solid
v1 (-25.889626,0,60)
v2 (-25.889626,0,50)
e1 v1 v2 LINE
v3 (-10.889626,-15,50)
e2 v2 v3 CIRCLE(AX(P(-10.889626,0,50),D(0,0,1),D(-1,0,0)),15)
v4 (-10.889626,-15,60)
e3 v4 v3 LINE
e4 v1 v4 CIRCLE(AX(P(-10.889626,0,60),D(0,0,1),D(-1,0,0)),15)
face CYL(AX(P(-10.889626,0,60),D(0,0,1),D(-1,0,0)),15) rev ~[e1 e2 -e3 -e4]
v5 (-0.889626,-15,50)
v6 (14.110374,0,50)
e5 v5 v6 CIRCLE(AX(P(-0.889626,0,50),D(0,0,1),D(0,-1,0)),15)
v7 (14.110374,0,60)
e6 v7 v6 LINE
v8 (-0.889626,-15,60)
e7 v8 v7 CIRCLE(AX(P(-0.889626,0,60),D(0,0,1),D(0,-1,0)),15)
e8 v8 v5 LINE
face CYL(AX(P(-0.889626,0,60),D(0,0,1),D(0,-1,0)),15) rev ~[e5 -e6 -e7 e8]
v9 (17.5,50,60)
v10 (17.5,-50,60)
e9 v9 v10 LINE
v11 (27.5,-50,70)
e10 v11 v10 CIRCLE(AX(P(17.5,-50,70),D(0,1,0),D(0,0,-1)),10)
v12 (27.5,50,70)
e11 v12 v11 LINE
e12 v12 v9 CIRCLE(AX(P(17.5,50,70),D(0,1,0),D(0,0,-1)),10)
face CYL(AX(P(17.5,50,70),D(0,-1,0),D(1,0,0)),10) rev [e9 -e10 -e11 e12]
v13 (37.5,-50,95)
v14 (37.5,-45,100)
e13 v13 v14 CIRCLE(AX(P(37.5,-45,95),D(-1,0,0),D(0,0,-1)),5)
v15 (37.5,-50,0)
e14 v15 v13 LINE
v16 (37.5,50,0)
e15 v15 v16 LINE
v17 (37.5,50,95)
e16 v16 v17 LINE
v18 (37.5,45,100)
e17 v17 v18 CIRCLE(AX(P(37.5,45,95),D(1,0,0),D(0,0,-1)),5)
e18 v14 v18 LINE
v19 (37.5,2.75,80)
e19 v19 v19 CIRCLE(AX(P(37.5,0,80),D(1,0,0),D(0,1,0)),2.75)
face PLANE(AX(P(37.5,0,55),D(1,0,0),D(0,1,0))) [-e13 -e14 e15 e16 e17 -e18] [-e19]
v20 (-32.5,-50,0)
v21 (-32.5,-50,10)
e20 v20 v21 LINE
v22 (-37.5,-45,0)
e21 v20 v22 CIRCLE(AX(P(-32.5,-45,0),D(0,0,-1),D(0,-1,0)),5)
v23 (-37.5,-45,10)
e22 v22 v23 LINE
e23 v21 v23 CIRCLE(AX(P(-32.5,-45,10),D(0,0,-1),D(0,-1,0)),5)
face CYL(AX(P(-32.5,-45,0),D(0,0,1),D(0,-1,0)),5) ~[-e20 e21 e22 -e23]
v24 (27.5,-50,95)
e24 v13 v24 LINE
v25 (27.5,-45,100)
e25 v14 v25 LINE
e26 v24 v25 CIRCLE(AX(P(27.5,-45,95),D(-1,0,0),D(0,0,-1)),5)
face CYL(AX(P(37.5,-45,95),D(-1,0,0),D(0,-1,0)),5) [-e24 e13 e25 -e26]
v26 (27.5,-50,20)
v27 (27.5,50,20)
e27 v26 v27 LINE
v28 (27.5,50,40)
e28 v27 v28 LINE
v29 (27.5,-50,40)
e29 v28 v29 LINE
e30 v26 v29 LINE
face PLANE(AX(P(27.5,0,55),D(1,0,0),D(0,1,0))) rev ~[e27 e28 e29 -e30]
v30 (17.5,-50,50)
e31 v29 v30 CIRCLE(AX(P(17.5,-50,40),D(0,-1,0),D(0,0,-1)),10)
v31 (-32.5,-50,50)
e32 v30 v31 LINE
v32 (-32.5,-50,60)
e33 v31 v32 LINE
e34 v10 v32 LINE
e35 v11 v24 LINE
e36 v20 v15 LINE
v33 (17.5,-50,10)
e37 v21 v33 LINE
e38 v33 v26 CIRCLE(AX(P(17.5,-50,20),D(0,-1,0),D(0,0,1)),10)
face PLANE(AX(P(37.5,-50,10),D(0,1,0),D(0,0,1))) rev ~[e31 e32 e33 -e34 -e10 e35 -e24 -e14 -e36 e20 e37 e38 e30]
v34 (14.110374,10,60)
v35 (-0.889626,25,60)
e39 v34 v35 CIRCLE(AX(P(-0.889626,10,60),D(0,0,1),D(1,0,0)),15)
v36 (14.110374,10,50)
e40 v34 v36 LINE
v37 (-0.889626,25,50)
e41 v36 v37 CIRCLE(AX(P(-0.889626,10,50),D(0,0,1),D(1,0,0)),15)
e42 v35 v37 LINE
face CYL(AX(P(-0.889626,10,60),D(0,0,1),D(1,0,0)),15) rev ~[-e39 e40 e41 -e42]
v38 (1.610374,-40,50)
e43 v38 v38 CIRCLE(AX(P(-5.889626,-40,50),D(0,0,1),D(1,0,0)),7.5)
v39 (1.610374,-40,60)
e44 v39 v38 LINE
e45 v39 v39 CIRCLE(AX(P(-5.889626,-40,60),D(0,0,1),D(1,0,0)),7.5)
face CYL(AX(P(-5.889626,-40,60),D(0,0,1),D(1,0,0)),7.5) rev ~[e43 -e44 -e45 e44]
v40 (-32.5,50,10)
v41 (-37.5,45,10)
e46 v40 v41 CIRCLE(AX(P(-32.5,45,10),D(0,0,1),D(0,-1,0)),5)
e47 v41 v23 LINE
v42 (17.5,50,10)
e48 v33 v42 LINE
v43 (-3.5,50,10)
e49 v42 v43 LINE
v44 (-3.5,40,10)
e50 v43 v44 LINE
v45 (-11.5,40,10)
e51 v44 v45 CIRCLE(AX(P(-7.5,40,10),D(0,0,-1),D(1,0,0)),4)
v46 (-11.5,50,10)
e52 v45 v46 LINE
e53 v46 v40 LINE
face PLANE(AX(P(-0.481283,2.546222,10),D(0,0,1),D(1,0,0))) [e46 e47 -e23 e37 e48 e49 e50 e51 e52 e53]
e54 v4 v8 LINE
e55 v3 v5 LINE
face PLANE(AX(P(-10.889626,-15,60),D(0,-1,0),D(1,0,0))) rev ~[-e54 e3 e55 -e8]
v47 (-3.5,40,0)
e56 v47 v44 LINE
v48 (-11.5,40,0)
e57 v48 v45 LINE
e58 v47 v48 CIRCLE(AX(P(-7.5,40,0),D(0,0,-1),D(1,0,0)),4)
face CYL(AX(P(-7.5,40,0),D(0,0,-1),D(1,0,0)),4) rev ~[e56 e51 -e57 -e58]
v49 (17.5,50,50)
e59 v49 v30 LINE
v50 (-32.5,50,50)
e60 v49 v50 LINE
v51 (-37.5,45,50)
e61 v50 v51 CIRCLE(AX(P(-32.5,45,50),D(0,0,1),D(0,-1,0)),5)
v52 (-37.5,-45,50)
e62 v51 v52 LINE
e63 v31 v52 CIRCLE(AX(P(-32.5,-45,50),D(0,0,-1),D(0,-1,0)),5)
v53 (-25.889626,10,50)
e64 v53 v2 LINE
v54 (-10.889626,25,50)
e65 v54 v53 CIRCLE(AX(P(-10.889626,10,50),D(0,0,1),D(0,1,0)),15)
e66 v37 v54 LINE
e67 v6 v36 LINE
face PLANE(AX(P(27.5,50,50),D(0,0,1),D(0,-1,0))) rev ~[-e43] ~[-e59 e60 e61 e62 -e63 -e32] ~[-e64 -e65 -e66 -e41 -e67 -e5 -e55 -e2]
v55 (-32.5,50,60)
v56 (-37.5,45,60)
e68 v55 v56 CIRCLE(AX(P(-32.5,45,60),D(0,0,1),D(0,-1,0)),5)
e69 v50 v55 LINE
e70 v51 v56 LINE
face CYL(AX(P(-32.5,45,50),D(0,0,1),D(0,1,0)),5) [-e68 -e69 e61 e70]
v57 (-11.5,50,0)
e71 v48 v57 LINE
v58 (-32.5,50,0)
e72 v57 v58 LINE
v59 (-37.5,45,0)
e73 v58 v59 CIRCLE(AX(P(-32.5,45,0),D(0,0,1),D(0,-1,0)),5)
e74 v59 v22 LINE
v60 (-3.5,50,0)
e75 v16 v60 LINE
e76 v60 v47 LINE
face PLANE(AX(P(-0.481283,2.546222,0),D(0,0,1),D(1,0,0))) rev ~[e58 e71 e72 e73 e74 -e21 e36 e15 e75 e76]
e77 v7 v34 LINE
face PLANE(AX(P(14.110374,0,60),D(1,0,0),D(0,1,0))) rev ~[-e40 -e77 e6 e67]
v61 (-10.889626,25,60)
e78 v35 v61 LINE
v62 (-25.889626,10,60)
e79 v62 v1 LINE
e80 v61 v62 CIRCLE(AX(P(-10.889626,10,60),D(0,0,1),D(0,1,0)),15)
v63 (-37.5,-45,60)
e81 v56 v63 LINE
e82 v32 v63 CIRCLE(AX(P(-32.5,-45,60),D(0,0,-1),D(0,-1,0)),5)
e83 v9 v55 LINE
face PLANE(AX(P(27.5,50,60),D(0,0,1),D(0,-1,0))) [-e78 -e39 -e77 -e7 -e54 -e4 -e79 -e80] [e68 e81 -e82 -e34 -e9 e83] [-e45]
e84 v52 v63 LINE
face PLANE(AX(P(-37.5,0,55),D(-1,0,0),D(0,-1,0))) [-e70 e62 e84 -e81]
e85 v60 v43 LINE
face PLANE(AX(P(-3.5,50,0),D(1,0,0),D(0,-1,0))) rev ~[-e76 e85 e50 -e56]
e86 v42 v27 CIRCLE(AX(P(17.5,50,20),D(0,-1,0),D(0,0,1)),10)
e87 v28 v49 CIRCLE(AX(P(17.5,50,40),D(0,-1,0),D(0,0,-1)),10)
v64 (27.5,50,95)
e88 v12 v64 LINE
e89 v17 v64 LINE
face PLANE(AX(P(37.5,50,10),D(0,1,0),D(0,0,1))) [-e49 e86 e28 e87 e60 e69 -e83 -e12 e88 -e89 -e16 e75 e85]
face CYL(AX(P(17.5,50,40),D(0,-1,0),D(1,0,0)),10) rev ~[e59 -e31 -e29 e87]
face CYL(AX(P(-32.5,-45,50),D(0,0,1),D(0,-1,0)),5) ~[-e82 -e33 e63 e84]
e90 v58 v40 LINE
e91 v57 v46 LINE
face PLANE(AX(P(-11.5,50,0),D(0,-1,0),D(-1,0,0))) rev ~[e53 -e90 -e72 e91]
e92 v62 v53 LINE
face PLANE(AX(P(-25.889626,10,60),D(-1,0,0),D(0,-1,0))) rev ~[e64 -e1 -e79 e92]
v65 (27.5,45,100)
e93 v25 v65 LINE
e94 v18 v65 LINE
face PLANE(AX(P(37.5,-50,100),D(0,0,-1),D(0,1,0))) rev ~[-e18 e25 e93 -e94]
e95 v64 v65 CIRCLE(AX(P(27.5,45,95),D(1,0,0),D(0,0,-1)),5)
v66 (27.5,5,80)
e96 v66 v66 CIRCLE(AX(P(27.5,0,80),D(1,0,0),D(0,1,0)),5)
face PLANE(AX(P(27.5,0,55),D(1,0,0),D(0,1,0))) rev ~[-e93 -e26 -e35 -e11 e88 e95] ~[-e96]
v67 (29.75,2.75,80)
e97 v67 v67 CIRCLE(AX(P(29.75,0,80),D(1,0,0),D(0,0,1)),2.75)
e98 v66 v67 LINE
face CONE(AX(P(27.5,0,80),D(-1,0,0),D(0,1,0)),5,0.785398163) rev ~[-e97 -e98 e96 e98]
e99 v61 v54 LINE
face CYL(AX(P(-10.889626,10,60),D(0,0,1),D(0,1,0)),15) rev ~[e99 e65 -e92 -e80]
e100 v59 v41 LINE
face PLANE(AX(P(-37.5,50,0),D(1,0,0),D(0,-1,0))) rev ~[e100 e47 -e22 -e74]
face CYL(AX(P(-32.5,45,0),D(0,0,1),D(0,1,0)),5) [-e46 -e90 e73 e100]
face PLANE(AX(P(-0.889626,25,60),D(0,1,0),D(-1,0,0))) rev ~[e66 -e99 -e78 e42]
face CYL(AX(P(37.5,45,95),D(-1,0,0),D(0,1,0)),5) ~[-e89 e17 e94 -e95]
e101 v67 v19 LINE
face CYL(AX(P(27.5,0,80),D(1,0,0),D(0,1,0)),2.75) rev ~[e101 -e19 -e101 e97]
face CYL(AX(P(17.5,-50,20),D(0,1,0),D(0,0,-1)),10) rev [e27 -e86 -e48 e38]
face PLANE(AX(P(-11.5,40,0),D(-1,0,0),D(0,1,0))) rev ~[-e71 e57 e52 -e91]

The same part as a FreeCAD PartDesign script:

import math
import FreeCAD as App
import Part
import Sketcher

V = App.Vector


def edges_at(feature, points):
    """Names of the edges that pass closest to the given points."""
    edges = feature.Shape.Edges
    near = lambda p: min(range(len(edges)), key=lambda i: edges[i].distToShape(Part.Vertex(*p))[0])
    return sorted({f"Edge{near(p) + 1}" for p in points})

doc = App.newDocument("Part")
body = doc.addObject("PartDesign::Body", "Body")

# Sketch on XY plane
sketch1 = body.newObject("Sketcher::SketchObject", "Sketch")
sketch1.AttachmentSupport = (doc.getObject("XY_Plane"), [""])
sketch1.MapMode = "FlatFace"
sketch1.addGeometry([
    Part.LineSegment(V(-11.5, 50, 0), V(-37.5, 50, 0)),  # 0
    Part.LineSegment(V(-37.5, 50, 0), V(-37.5, -50, 0)),  # 1
    Part.LineSegment(V(-37.5, -50, 0), V(37.5, -50, 0)),  # 2
    Part.LineSegment(V(37.5, -50, 0), V(37.5, 50, 0)),  # 3
    Part.LineSegment(V(37.5, 50, 0), V(-3.5, 50, 0)),  # 4
    Part.LineSegment(V(-3.5, 50, 0), V(-3.5, 40, 0)),  # 5
    Part.ArcOfCircle(Part.Circle(V(-7.5, 40, 0), V(0, 0, 1), 4), math.radians(180), math.radians(360)),  # 6
    Part.LineSegment(V(-11.5, 40, 0), V(-11.5, 50, 0)),  # 7
], False)
sketch1.addConstraint([
    Sketcher.Constraint("Coincident", 0, 2, 1, 1),
    Sketcher.Constraint("Coincident", 1, 2, 2, 1),
    Sketcher.Constraint("Coincident", 2, 2, 3, 1),
    Sketcher.Constraint("Coincident", 3, 2, 4, 1),
    Sketcher.Constraint("Coincident", 4, 2, 5, 1),
    Sketcher.Constraint("Tangent", 5, 2, 6, 2),
    Sketcher.Constraint("Tangent", 6, 1, 7, 1),
    Sketcher.Constraint("Coincident", 7, 2, 0, 1),
    Sketcher.Constraint("Horizontal", 0),
    Sketcher.Constraint("Vertical", 1),
    Sketcher.Constraint("Horizontal", 2),
    Sketcher.Constraint("Vertical", 3),
    Sketcher.Constraint("Horizontal", 4),
    Sketcher.Constraint("Vertical", 5),
    Sketcher.Constraint("Vertical", 7),
    Sketcher.Constraint("Symmetric", 0, 2, 2, 2, -1, 1),
    Sketcher.Constraint("Horizontal", 0, 2, 3, 2),
    Sketcher.Constraint("Radius", 6, 4.0),
    Sketcher.Constraint("DistanceX", 0, 2, 0, 1, 26.0),
    Sketcher.Constraint("DistanceX", 2, 1, 2, 2, 75.0),
    Sketcher.Constraint("DistanceY", 1, 2, 1, 1, 100.0),
    Sketcher.Constraint("DistanceY", 5, 2, 5, 1, 10.0),
])
pad1 = body.newObject("PartDesign::Pad", "Pad")
pad1.Profile = sketch1
pad1.Length = 10

# Sketch on YZ plane
sketch2 = body.newObject("Sketcher::SketchObject", "Sketch001")
sketch2.AttachmentSupport = (doc.getObject("YZ_Plane"), [""])
sketch2.MapMode = "FlatFace"
sketch2.AttachmentOffset = App.Placement(V(0, 0, 37.5), App.Rotation())
sketch2.addGeometry([
    Part.LineSegment(V(-50, 100, 0), V(-50, 10, 0)),
    Part.LineSegment(V(-50, 10, 0), V(50, 10, 0)),
    Part.LineSegment(V(50, 10, 0), V(50, 100, 0)),
    Part.LineSegment(V(50, 100, 0), V(-50, 100, 0)),
], False)
sketch2.addConstraint([
    Sketcher.Constraint("Coincident", 0, 2, 1, 1),
    Sketcher.Constraint("Coincident", 1, 2, 2, 1),
    Sketcher.Constraint("Coincident", 2, 2, 3, 1),
    Sketcher.Constraint("Coincident", 3, 2, 0, 1),
    Sketcher.Constraint("Vertical", 0),
    Sketcher.Constraint("Horizontal", 1),
    Sketcher.Constraint("Vertical", 2),
    Sketcher.Constraint("Horizontal", 3),
    Sketcher.Constraint("DistanceX", 1, 1, 1, 2, 100.0),
    Sketcher.Constraint("DistanceY", 0, 2, 0, 1, 90.0),
    Sketcher.Constraint("DistanceX", 0, 2, -1, 1, 50.0),
    Sketcher.Constraint("DistanceY", -1, 1, 0, 2, 10.0),
])
pad2 = body.newObject("PartDesign::Pad", "Pad001")
pad2.Profile = sketch2
pad2.Length = 10
pad2.Reversed = True

# Sketch on YZ plane
sketch3 = body.newObject("Sketcher::SketchObject", "Sketch002")
sketch3.AttachmentSupport = (doc.getObject("YZ_Plane"), [""])
sketch3.MapMode = "FlatFace"
sketch3.AttachmentOffset = App.Placement(V(0, 0, 27.5), App.Rotation())
sketch3.addGeometry([
    Part.LineSegment(V(50, 60, 0), V(50, 50, 0)),
    Part.LineSegment(V(50, 50, 0), V(-50, 50, 0)),
    Part.LineSegment(V(-50, 50, 0), V(-50, 60, 0)),
    Part.LineSegment(V(-50, 60, 0), V(50, 60, 0)),
], False)
sketch3.addConstraint([
    Sketcher.Constraint("Coincident", 0, 2, 1, 1),
    Sketcher.Constraint("Coincident", 1, 2, 2, 1),
    Sketcher.Constraint("Coincident", 2, 2, 3, 1),
    Sketcher.Constraint("Coincident", 3, 2, 0, 1),
    Sketcher.Constraint("Vertical", 0),
    Sketcher.Constraint("Horizontal", 1),
    Sketcher.Constraint("Vertical", 2),
    Sketcher.Constraint("Horizontal", 3),
    Sketcher.Constraint("DistanceX", 1, 2, 1, 1, 100.0),
    Sketcher.Constraint("DistanceY", 0, 2, 0, 1, 10.0),
    Sketcher.Constraint("DistanceX", -1, 1, 0, 2, 50.0),
    Sketcher.Constraint("DistanceY", -1, 1, 0, 2, 50.0),
])
pad3 = body.newObject("PartDesign::Pad", "Pad002")
pad3.Profile = sketch3
pad3.Length = 65
pad3.Reversed = True

# Sketch on YZ plane
sketch4 = body.newObject("Sketcher::SketchObject", "Sketch003")
sketch4.AttachmentSupport = (doc.getObject("YZ_Plane"), [""])
sketch4.MapMode = "FlatFace"
sketch4.AttachmentOffset = App.Placement(V(0, 0, 27.5), App.Rotation())
sketch4.addGeometry(Part.Circle(V(0, 80, 0), V(0, 0, 1), 2.8), False)
sketch4.addConstraint([
    Sketcher.Constraint("PointOnObject", 0, 3, -2),
    Sketcher.Constraint("Diameter", 0, 5.5),
    Sketcher.Constraint("DistanceY", -1, 1, 0, 3, 80.0),
])
doc.recompute()
hole = body.newObject("PartDesign::Hole", "Hole")
hole.Profile = sketch4
hole.ThreadType = "None"
hole.Diameter = 5.5
hole.DepthType = "ThroughAll"
hole.HoleCutType = "Countersink"
hole.HoleCutDiameter = 10
hole.HoleCutCountersinkAngle = 90
hole.Reversed = True
doc.recompute()

fillet = body.newObject("PartDesign::Fillet", "Fillet")
fillet.Base = (hole, edges_at(hole, [
    (-37.5, 50, 5),
    (-37.5, -50, 5),
    (32.5, -50, 100),
    (32.5, 50, 100),
    (-37.5, 50, 55),
    (-37.5, -50, 55),
]))
fillet.Radius = 5
doc.recompute()

fillet2 = body.newObject("PartDesign::Fillet", "Fillet001")
fillet2.Base = (fillet, edges_at(fillet, [(27.5, 0, 10), (27.5, 0, 60), (27.5, 0, 50)]))
fillet2.Radius = 10

# Sketch on XY plane
sketch5 = body.newObject("Sketcher::SketchObject", "Sketch004")
sketch5.AttachmentSupport = (doc.getObject("XY_Plane"), [""])
sketch5.MapMode = "FlatFace"
sketch5.AttachmentOffset = App.Placement(V(0, 0, 60), App.Rotation())
sketch5.addGeometry([
    Part.Circle(V(-6, -40, 0), V(0, 0, 1), 8),  # 0
    Part.LineSegment(V(-1, 25, 0), V(-11, 25, 0)),  # 1
    Part.ArcOfCircle(Part.Circle(V(-11, 10, 0), V(0, 0, 1), 15), math.radians(90), math.radians(180)),  # 2
    Part.LineSegment(V(-26, 10, 0), V(-26, 0, 0)),  # 3
    Part.ArcOfCircle(Part.Circle(V(-11, 0, 0), V(0, 0, 1), 15), math.radians(180), math.radians(270)),  # 4
    Part.LineSegment(V(-11, -15, 0), V(-1, -15, 0)),  # 5
    Part.ArcOfCircle(Part.Circle(V(-1, 0, 0), V(0, 0, 1), 15), math.radians(-90), math.radians(0)),  # 6
    Part.LineSegment(V(14, 0, 0), V(14, 10, 0)),  # 7
    Part.ArcOfCircle(Part.Circle(V(-1, 10, 0), V(0, 0, 1), 15), math.radians(0), math.radians(90)),  # 8
], False)
sketch5.addConstraint([
    Sketcher.Constraint("Tangent", 1, 2, 2, 1),
    Sketcher.Constraint("Tangent", 2, 2, 3, 1),
    Sketcher.Constraint("Tangent", 3, 2, 4, 1),
    Sketcher.Constraint("Tangent", 4, 2, 5, 1),
    Sketcher.Constraint("Tangent", 5, 2, 6, 1),
    Sketcher.Constraint("Tangent", 6, 2, 7, 1),
    Sketcher.Constraint("Tangent", 7, 2, 8, 1),
    Sketcher.Constraint("Tangent", 8, 2, 1, 1),
    Sketcher.Constraint("Horizontal", 1),
    Sketcher.Constraint("Vertical", 3),
    Sketcher.Constraint("Horizontal", 5),
    Sketcher.Constraint("Vertical", 7),
    Sketcher.Constraint("Equal", 2, 4),
    Sketcher.Constraint("Equal", 4, 6),
    Sketcher.Constraint("Equal", 6, 8),
    Sketcher.Constraint("PointOnObject", 4, 3, -1),
    Sketcher.Constraint("Equal", 5, 3),
    Sketcher.Constraint("Diameter", 0, 15.0),
    Sketcher.Constraint("Radius", 2, 15.0),
    Sketcher.Constraint("DistanceX", 1, 2, 1, 1, 10.0),
    Sketcher.Constraint("DistanceY", 0, 3, -1, 1, 40.0),
    Sketcher.Constraint("DistanceX", 2, 3, 0, 3, 5.0),
    Sketcher.Constraint("DistanceX", 0, 3, -1, 1, 5.889626),
])
pocket1 = body.newObject("PartDesign::Pocket", "Pocket")
pocket1.Profile = sketch5
pocket1.Length = 10

doc.recompute()
